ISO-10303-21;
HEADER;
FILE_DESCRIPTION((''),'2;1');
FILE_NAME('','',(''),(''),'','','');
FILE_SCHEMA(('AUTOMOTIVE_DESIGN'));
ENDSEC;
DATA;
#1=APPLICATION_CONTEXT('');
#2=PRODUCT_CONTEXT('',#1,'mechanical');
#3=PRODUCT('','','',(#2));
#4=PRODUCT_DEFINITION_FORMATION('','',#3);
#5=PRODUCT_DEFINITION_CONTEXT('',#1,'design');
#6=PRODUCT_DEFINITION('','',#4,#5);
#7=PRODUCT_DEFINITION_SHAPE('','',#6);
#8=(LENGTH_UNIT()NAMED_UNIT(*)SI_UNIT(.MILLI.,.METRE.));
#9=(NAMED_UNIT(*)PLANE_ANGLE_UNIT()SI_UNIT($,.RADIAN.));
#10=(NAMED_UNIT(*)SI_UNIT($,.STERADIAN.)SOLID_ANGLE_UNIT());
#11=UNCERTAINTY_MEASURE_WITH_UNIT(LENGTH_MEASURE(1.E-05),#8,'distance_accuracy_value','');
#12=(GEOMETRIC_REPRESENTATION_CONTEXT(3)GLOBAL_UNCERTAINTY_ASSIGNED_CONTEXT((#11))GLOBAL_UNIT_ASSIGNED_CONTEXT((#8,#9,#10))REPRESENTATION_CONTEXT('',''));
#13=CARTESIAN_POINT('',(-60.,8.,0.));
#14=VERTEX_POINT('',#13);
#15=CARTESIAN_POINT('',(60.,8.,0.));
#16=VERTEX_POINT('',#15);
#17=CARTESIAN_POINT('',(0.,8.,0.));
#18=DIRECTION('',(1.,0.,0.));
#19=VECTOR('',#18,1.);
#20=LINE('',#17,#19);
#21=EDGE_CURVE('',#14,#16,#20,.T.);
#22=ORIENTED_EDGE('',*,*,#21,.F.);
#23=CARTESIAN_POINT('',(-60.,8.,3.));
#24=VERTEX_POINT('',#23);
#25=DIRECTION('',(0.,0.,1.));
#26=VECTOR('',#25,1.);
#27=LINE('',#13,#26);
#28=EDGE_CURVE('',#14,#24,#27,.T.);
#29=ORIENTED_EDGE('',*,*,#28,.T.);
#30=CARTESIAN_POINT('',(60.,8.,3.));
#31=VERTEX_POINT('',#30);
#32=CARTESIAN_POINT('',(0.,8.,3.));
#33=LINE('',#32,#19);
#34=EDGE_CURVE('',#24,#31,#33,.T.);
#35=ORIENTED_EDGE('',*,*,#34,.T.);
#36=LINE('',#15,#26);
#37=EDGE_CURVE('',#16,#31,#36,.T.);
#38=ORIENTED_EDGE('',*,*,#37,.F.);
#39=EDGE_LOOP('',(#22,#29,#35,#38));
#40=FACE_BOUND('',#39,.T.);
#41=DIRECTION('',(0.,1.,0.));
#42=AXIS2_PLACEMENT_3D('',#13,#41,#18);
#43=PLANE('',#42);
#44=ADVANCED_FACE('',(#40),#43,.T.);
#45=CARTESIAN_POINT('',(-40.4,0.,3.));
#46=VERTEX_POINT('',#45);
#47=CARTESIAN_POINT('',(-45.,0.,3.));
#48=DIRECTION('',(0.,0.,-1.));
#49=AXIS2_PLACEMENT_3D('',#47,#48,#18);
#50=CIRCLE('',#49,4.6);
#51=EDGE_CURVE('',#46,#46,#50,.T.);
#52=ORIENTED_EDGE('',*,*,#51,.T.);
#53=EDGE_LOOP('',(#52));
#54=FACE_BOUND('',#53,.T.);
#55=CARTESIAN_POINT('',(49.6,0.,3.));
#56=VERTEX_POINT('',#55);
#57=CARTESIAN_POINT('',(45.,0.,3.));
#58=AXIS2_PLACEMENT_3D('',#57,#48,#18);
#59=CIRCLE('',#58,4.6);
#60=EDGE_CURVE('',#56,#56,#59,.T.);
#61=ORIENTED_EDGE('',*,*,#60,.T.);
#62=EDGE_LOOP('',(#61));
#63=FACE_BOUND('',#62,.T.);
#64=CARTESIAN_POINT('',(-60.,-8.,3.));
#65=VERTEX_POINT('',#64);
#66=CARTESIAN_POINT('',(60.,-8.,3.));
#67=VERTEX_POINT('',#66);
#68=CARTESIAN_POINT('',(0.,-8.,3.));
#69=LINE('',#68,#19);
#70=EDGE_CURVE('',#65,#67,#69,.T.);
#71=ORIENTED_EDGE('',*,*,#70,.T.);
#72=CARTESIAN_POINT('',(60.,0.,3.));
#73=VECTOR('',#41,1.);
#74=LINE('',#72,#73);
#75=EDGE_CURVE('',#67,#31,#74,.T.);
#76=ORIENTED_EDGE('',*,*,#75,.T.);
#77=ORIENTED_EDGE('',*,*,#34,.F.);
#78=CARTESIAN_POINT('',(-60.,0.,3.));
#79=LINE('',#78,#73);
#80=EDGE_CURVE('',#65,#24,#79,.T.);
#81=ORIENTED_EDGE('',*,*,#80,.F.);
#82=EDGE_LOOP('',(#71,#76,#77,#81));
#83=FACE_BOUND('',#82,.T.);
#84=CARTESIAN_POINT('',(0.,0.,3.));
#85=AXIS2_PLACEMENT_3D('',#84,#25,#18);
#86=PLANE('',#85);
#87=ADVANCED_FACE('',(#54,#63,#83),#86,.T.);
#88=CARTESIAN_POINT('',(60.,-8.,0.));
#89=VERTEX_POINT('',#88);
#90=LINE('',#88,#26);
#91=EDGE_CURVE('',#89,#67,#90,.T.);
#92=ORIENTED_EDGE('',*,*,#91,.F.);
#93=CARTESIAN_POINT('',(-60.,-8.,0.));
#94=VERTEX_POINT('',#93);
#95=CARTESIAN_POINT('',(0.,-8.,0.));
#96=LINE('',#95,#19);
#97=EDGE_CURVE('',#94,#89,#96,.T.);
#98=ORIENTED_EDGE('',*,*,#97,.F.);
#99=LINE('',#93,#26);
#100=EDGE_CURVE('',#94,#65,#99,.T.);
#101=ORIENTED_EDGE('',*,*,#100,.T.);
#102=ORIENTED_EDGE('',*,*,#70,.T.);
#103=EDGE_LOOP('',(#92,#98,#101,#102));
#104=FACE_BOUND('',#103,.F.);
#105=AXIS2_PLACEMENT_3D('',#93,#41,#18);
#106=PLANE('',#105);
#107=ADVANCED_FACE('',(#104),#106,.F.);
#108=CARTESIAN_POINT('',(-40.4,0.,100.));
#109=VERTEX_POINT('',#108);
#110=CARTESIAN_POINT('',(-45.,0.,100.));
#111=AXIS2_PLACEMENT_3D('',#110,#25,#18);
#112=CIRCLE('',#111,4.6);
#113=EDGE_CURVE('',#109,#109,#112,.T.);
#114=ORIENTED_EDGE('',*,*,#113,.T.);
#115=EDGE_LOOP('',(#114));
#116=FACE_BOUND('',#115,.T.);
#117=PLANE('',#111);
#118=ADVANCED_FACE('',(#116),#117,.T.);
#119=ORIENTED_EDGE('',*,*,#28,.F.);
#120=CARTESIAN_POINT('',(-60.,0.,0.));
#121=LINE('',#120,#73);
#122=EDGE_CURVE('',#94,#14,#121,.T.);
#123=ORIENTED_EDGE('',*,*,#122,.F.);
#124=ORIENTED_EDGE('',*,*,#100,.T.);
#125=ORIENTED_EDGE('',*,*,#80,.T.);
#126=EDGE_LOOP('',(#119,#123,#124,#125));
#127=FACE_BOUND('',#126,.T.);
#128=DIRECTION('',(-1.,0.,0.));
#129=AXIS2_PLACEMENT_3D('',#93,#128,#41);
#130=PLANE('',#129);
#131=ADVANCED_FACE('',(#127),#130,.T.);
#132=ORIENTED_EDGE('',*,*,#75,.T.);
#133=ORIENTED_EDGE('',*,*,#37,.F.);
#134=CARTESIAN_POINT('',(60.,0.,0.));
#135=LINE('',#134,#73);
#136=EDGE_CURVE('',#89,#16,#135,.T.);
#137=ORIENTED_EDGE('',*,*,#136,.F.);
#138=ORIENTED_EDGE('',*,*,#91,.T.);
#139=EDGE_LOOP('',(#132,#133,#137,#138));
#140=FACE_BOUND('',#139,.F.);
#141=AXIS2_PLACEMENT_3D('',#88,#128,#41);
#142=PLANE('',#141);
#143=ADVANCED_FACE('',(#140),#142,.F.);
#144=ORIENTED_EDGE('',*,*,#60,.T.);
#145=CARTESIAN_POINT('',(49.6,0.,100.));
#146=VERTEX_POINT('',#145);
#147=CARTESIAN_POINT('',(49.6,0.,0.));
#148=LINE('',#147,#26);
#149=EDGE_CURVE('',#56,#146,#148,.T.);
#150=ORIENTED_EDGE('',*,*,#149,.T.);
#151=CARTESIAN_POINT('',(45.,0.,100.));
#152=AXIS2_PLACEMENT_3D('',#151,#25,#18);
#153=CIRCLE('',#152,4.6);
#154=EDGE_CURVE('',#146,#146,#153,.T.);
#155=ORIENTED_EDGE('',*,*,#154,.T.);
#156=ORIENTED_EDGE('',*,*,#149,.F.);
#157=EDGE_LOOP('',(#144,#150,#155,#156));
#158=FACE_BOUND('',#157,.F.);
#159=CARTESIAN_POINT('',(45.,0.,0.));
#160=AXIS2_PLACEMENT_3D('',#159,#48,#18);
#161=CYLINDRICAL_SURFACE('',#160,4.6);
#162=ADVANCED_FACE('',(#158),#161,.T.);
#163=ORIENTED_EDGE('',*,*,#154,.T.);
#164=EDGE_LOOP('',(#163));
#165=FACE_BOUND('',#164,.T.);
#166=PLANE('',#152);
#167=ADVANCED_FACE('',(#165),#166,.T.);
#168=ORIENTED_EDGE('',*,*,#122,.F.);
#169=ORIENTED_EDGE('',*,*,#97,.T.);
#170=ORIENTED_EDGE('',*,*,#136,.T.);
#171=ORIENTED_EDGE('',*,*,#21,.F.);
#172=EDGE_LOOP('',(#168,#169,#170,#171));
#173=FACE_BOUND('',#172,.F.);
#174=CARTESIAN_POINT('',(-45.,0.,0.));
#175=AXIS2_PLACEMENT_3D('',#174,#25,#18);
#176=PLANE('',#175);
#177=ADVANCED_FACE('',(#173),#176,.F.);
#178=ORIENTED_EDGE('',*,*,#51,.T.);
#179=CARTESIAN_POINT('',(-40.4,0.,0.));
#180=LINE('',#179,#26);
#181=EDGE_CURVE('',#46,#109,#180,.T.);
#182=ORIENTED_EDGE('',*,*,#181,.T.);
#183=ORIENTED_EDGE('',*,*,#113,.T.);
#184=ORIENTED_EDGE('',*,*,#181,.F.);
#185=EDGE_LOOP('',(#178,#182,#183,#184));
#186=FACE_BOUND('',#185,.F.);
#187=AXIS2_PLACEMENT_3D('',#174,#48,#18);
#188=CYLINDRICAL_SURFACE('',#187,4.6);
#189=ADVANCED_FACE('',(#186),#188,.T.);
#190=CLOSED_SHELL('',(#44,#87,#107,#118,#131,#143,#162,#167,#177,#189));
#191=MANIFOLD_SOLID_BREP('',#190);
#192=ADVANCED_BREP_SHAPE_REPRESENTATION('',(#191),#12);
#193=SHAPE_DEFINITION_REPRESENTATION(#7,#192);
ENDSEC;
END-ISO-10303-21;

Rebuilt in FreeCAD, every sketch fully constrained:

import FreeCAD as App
import Part
import Sketcher
Q = App.Units.Quantity


def add_polygon(sketch, points):
    """Adds a closed chain of lines whose ends are joined by coincident constraints."""
    first, n = sketch.GeometryCount, len(points)
    for a, b in zip(points, points[1:] + points[:1]):
        sketch.addGeometry(Part.LineSegment(App.Vector(*a, 0), App.Vector(*b, 0)), False)
    for i in range(n):
        sketch.addConstraint(Sketcher.Constraint("Coincident", first + i, 2, first + (i + 1) % n, 1))

doc = App.newDocument("Part")
params = doc.addObject("Spreadsheet::Sheet", "Params")
for row, (alias, value) in enumerate([
    ("sketch1_width", "120 mm"),
    ("sketch1_height", "16 mm"),
    ("pad1_length", "3 mm"),
    ("sketch2_diameter", "9.2 mm"),
    ("pad2_length", "100 mm"),
], start=1):
    params.set(f"A{row}", alias)
    params.set(f"B{row}", "=" + value)
    params.setAlias(f"B{row}", alias)

body = doc.addObject("PartDesign::Body", "Body")

sketch1 = body.newObject("Sketcher::SketchObject", "Sketch")
sketch1.AttachmentSupport = (doc.getObject("XY_Plane"), [""])
sketch1.MapMode = "FlatFace"
add_polygon(sketch1, [(-60, 8), (-60, -8), (60, -8), (60, 8)])
sketch1.addConstraint([
    Sketcher.Constraint("Vertical", 0),
    Sketcher.Constraint("Horizontal", 1),
    Sketcher.Constraint("Vertical", 2),
    Sketcher.Constraint("Horizontal", 3),
    Sketcher.Constraint("Symmetric", 0, 2, 2, 2, -1, 1),
    Sketcher.Constraint("DistanceX", 1, 1, 1, 2, Q("120 mm")),
    Sketcher.Constraint("DistanceY", 0, 2, 0, 1, Q("16 mm")),
])
sketch1.setExpression("Constraints[9]", "Params.sketch1_width")
sketch1.setExpression("Constraints[10]", "Params.sketch1_height")
pad1 = body.newObject("PartDesign::Pad", "Pad")
pad1.Profile = sketch1
pad1.setExpression("Length", "Params.pad1_length")

sketch2 = body.newObject("Sketcher::SketchObject", "Sketch001")
sketch2.AttachmentSupport = (doc.getObject("XY_Plane"), [""])
sketch2.MapMode = "FlatFace"
sketch2.addGeometry([
    Part.Circle(App.Vector(-45, 0, 0), App.Vector(0, 0, 1), 4.6),
    Part.Circle(App.Vector(45, 0, 0), App.Vector(0, 0, 1), 4.6),
], False)
sketch2.addConstraint([
    Sketcher.Constraint("Equal", 0, 1),
    Sketcher.Constraint("Symmetric", 0, 3, 1, 3, -1, 1),
    Sketcher.Constraint("PointOnObject", 0, 3, -1),
    Sketcher.Constraint("Diameter", 0, Q("9.2 mm")),
    Sketcher.Constraint("DistanceX", 0, 3, -1, 1, Q("45 mm")),
])
sketch2.setExpression("Constraints[3]", "Params.sketch2_diameter")
pad2 = body.newObject("PartDesign::Pad", "Pad001")
pad2.Profile = sketch2
pad2.setExpression("Length", "Params.pad2_length")

doc.recompute()
